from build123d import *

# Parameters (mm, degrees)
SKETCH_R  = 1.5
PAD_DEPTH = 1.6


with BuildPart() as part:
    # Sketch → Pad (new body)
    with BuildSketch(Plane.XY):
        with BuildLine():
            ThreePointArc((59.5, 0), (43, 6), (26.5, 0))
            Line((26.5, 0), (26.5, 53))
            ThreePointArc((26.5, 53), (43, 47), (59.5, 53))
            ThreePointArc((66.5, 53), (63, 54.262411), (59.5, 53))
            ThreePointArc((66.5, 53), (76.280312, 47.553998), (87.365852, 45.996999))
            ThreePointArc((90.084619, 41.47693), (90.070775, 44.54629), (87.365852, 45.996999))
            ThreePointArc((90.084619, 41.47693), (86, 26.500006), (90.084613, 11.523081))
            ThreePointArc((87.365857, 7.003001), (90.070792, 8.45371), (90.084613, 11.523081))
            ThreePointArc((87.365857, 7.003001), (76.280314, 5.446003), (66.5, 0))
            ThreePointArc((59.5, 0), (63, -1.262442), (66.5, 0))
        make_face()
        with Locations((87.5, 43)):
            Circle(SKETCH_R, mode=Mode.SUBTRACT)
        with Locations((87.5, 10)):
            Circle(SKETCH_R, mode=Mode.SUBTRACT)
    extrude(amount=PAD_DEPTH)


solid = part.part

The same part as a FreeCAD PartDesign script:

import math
import FreeCAD as App
import Part
import Sketcher
from FreeCAD import Vector

doc = App.newDocument("Part")
params = doc.addObject("Spreadsheet::Sheet", "Params")
for row, (alias, value) in enumerate([
    ("sketch1_diameter", "3 mm"),
    ("sketch1_radius", "3.000002 mm"),
    ("sketch1_radius2", "29.500001 mm"),
    ("sketch1_height", "53 mm"),
    ("pad1_length", "1.6 mm"),
], start=1):
    params.set(f"A{row}", alias)
    params.set(f"B{row}", "=" + value)
    params.setAlias(f"B{row}", alias)

body = doc.addObject("PartDesign::Body", "Body")

# Sketch on XY plane
sketch1 = doc.addObject("Sketcher::SketchObject", "Sketch")
body.addObject(sketch1)
sketch1.AttachmentSupport = (doc.XY_Plane, [""])
sketch1.MapMode = "FlatFace"
sketch1.addGeometry([
    Part.ArcOfCircle(Part.Circle(Vector(43, -19.7, 0), Vector(0, 0, 1), 25.7), math.radians(50), math.radians(130)),  # 0
    Part.ArcOfCircle(Part.Circle(Vector(63, 4.2, 0), Vector(0, 0, 1), 5.5), math.radians(-130), math.radians(-50)),  # 1
    Part.ArcOfCircle(Part.Circle(Vector(86, -23.5, 0), Vector(0, 0, 1), 30.5), math.radians(87), math.radians(130)),  # 2
    Part.ArcOfCircle(Part.Circle(Vector(87.5, 10, 0), Vector(0, 0, 1), 3), math.radians(-93), math.radians(31)),  # 3
    Part.ArcOfCircle(Part.Circle(Vector(115.5, 26.5, 0), Vector(0, 0, 1), 29.5), math.radians(149), math.radians(211)),  # 4
    Part.ArcOfCircle(Part.Circle(Vector(87.5, 43, 0), Vector(0, 0, 1), 3), math.radians(-31), math.radians(93)),  # 5
    Part.ArcOfCircle(Part.Circle(Vector(86, 76.5, 0), Vector(0, 0, 1), 30.5), math.radians(-130), math.radians(-87)),  # 6
    Part.ArcOfCircle(Part.Circle(Vector(63, 48.8, 0), Vector(0, 0, 1), 5.5), math.radians(50), math.radians(130)),  # 7
    Part.ArcOfCircle(Part.Circle(Vector(43, 72.7, 0), Vector(0, 0, 1), 25.7), math.radians(-130), math.radians(-50)),  # 8
    Part.LineSegment(Vector(26.5, 53, 0), Vector(26.5, 0, 0)),  # 9
    Part.Circle(Vector(87.5, 10, 0), Vector(0, 0, 1), 1.5),  # 10
    Part.Circle(Vector(87.5, 43, 0), Vector(0, 0, 1), 1.5),  # 11
], False)
sketch1.addConstraint([
    Sketcher.Constraint("Coincident", 0, 1, 1, 1),
    Sketcher.Constraint("Coincident", 1, 2, 2, 2),
    Sketcher.Constraint("Tangent", 2, 1, 3, 1),
    Sketcher.Constraint("Tangent", 3, 2, 4, 2),
    Sketcher.Constraint("Coincident", 4, 1, 5, 1),
    Sketcher.Constraint("Coincident", 5, 2, 6, 2),
    Sketcher.Constraint("Coincident", 6, 1, 7, 1),
    Sketcher.Constraint("Coincident", 7, 2, 8, 2),
    Sketcher.Constraint("Coincident", 8, 1, 9, 1),
    Sketcher.Constraint("Coincident", 9, 2, 0, 2),
    Sketcher.Constraint("Vertical", 9),
    Sketcher.Constraint("Coincident", 10, 3, 3, 3),
    Sketcher.Constraint("Equal", 0, 8),
    Sketcher.Constraint("Equal", 10, 11),
    Sketcher.Constraint("PointOnObject", 0, 1, -1),
    Sketcher.Constraint("PointOnObject", 1, 2, -1),
    Sketcher.Constraint("PointOnObject", 9, 2, -1),
    Sketcher.Constraint("Horizontal", 6, 1, 7, 2),
    Sketcher.Constraint("Horizontal", 7, 2, 8, 1),
    Sketcher.Constraint("Vertical", 2, 3, 6, 3),
    Sketcher.Constraint("Vertical", 1, 3, 7, 3),
    Sketcher.Constraint("Vertical", 0, 3, 8, 3),
    Sketcher.Constraint("Vertical", 10, 3, 11, 3),
    Sketcher.Constraint("Diameter", 10, 3.0),
    Sketcher.Constraint("Radius", 3, 3.000002),
    Sketcher.Constraint("Radius", 4, 29.500001),
    Sketcher.Constraint("DistanceY", 9, 2, 9, 1, 53.0),
    Sketcher.Constraint("DistanceX", -1, 1, 0, 3, 43.0),
    Sketcher.Constraint("DistanceX", -1, 1, 1, 3, 63.0),
    Sketcher.Constraint("DistanceX", -1, 1, 2, 3, 86.000002),
    Sketcher.Constraint("DistanceY", -1, 1, 10, 3, 10.0),
    Sketcher.Constraint("DistanceY", -1, 1, 11, 3, 43.0),
    Sketcher.Constraint("DistanceX", 10, 3, 4, 3, 28.000001),
    Sketcher.Constraint("DistanceX", 0, 1, 10, 3, 28.0),
    Sketcher.Constraint("DistanceX", 0, 1, 1, 2, 7.0),
    Sketcher.Constraint("Radius", 0, 25.6875),
    Sketcher.Constraint("Radius", 1, 5.482929),
    Sketcher.Constraint("DistanceY", -1, 1, 5, 2, 45.996999),
    Sketcher.Constraint("Radius", 5, 3.000015),
    Sketcher.Constraint("Radius", 6, 30.547936),
    Sketcher.Constraint("Radius", 7, 5.483033),
    Sketcher.Constraint("DistanceX", -1, 1, 4, 1, 90.084619),
])
sketch1.setExpression("Constraints[23]", "Params.sketch1_diameter")
sketch1.setExpression("Constraints[24]", "Params.sketch1_radius")
sketch1.setExpression("Constraints[25]", "Params.sketch1_radius2")
sketch1.setExpression("Constraints[26]", "Params.sketch1_height")
pad1 = doc.addObject("PartDesign::Pad", "Pad")
body.addObject(pad1)
pad1.Profile = sketch1
pad1.setExpression("Length", "Params.pad1_length")

doc.recompute()
